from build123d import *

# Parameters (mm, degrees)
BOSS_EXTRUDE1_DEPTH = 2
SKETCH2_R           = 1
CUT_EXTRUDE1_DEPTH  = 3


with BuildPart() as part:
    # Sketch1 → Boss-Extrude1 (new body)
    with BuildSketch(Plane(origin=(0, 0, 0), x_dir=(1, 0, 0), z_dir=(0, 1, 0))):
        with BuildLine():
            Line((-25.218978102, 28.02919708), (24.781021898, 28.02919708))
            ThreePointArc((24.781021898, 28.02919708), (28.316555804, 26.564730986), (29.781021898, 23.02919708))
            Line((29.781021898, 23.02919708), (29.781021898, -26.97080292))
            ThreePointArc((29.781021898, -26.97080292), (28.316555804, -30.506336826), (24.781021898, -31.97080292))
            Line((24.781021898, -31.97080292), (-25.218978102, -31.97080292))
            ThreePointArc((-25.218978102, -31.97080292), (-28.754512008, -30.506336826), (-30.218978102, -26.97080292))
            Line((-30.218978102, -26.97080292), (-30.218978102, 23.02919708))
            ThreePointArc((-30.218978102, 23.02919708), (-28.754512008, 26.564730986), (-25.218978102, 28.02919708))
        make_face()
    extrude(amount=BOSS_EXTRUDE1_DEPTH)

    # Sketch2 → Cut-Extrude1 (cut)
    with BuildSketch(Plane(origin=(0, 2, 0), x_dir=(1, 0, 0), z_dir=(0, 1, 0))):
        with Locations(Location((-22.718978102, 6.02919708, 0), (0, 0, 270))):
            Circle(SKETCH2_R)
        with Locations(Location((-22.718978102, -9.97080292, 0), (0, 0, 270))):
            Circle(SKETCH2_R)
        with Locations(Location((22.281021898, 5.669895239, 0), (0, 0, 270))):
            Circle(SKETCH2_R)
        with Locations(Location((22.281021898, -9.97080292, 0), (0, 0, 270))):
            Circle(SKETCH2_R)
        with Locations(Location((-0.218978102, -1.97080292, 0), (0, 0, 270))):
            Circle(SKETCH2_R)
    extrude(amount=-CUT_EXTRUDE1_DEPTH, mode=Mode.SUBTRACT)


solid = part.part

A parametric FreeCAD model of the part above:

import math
import FreeCAD as App
import Part
import Sketcher
from FreeCAD import Vector
Q = App.Units.Quantity

doc = App.newDocument("Part")
body = doc.addObject("PartDesign::Body", "Body")

# Sketch on XZ plane
sketch1 = body.newObject("Sketcher::SketchObject", "Sketch")
sketch1.AttachmentSupport = (doc.getObject("XZ_Plane"), [""])
sketch1.MapMode = "FlatFace"
sketch1.addGeometry([
    Part.LineSegment(Vector(25, -28, 0), Vector(-25, -28, 0)),  # 0
    Part.ArcOfCircle(Part.Circle(Vector(-25, -23, 0), Vector(0, 0, 1), 5), math.radians(180), math.radians(270)),  # 1
    Part.LineSegment(Vector(-30, -23, 0), Vector(-30, 27, 0)),  # 2
    Part.ArcOfCircle(Part.Circle(Vector(-25, 27, 0), Vector(0, 0, 1), 5), math.radians(90), math.radians(180)),  # 3
    Part.LineSegment(Vector(-25, 32, 0), Vector(25, 32, 0)),  # 4
    Part.ArcOfCircle(Part.Circle(Vector(25, 27, 0), Vector(0, 0, 1), 5), math.radians(0), math.radians(90)),  # 5
    Part.LineSegment(Vector(30, 27, 0), Vector(30, -23, 0)),  # 6
    Part.ArcOfCircle(Part.Circle(Vector(25, -23, 0), Vector(0, 0, 1), 5), math.radians(-90), math.radians(0)),  # 7
], False)
sketch1.addConstraint([
    Sketcher.Constraint("Tangent", 0, 2, 1, 2),
    Sketcher.Constraint("Tangent", 1, 1, 2, 1),
    Sketcher.Constraint("Tangent", 2, 2, 3, 2),
    Sketcher.Constraint("Tangent", 3, 1, 4, 1),
    Sketcher.Constraint("Tangent", 4, 2, 5, 2),
    Sketcher.Constraint("Tangent", 5, 1, 6, 1),
    Sketcher.Constraint("Tangent", 6, 2, 7, 2),
    Sketcher.Constraint("Tangent", 7, 1, 0, 1),
    Sketcher.Constraint("Horizontal", 0),
    Sketcher.Constraint("Vertical", 2),
    Sketcher.Constraint("Horizontal", 4),
    Sketcher.Constraint("Vertical", 6),
    Sketcher.Constraint("Equal", 1, 3),
    Sketcher.Constraint("Equal", 3, 5),
    Sketcher.Constraint("Equal", 5, 7),
    Sketcher.Constraint("Equal", 4, 2),
    Sketcher.Constraint("Radius", 1, Q("5 mm")),
    Sketcher.Constraint("DistanceX", 0, 2, 0, 1, Q("50 mm")),
    Sketcher.Constraint("DistanceX", 1, 3, -1, 1, Q("25.218978 mm")),
    Sketcher.Constraint("DistanceY", 1, 3, -1, 1, Q("23.029197 mm")),
])
pad1 = body.newObject("PartDesign::Pad", "Pad")
pad1.Profile = sketch1
pad1.Length = 2
pad1.Reversed = True

# Sketch on XZ plane
sketch2 = body.newObject("Sketcher::SketchObject", "Sketch001")
sketch2.AttachmentSupport = (doc.getObject("XZ_Plane"), [""])
sketch2.MapMode = "FlatFace"
sketch2.AttachmentOffset = App.Placement(Vector(0, 0, -2), App.Rotation())
sketch2.addGeometry([
    Part.Circle(Vector(-22.7, -6, 0), Vector(0, 0, 1), 1),  # 0
    Part.Circle(Vector(-22.7, 10, 0), Vector(0, 0, 1), 1),  # 1
    Part.Circle(Vector(22.3, -5.7, 0), Vector(0, 0, 1), 1),  # 2
    Part.Circle(Vector(22.3, 10, 0), Vector(0, 0, 1), 1),  # 3
    Part.Circle(Vector(-0.2, 2, 0), Vector(0, 0, 1), 1),  # 4
], False)
sketch2.addConstraint([
    Sketcher.Constraint("Equal", 0, 1),
    Sketcher.Constraint("Equal", 1, 2),
    Sketcher.Constraint("Equal", 2, 3),
    Sketcher.Constraint("Equal", 3, 4),
    Sketcher.Constraint("Horizontal", 1, 3, 3, 3),
    Sketcher.Constraint("Vertical", 0, 3, 1, 3),
    Sketcher.Constraint("Vertical", 2, 3, 3, 3),
    Sketcher.Constraint("Diameter", 0, Q("2 mm")),
    Sketcher.Constraint("DistanceY", 0, 3, 1, 3, Q("16 mm")),
    Sketcher.Constraint("DistanceX", 0, 3, 2, 3, Q("45 mm")),
    Sketcher.Constraint("DistanceY", 0, 3, 4, 3, Q("8 mm")),
    Sketcher.Constraint("DistanceX", 4, 3, 2, 3, Q("22.5 mm")),
    Sketcher.Constraint("DistanceY", 0, 3, 2, 3, Q("0.359302 mm")),
    Sketcher.Constraint("DistanceX", 0, 3, -1, 1, Q("22.718978 mm")),
    Sketcher.Constraint("DistanceY", 0, 3, -1, 1, Q("6.029197 mm")),
])
pocket1 = body.newObject("PartDesign::Pocket", "Pocket")
pocket1.Profile = sketch2
pocket1.Length = 3
pocket1.Reversed = True

doc.recompute()
